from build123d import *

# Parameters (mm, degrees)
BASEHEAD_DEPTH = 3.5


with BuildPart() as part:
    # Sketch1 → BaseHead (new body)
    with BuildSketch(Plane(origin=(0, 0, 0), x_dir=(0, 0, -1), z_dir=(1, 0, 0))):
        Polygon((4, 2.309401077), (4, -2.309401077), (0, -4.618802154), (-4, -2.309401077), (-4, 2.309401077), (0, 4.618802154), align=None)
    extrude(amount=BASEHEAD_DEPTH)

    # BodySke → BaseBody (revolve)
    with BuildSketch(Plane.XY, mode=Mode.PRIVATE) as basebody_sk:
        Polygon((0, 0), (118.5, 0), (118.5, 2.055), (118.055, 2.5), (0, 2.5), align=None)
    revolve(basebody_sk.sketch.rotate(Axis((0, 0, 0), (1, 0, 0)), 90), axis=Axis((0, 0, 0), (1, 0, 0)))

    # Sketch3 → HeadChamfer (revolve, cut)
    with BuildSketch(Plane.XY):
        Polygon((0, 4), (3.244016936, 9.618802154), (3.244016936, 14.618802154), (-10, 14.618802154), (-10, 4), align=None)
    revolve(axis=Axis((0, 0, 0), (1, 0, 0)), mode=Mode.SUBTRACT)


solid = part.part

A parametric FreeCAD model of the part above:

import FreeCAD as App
import Part
import Sketcher
Q = App.Units.Quantity


def add_polygon(sketch, points):
    """Adds a closed chain of lines whose ends are joined by coincident constraints."""
    first, n = sketch.GeometryCount, len(points)
    for a, b in zip(points, points[1:] + points[:1]):
        sketch.addGeometry(Part.LineSegment(App.Vector(*a, 0), App.Vector(*b, 0)), False)
    for i in range(n):
        sketch.addConstraint(Sketcher.Constraint("Coincident", first + i, 2, first + (i + 1) % n, 1))

doc = App.newDocument("Part")
body = doc.addObject("PartDesign::Body", "Body")

# Sketch on YZ plane
sketch1 = body.newObject("Sketcher::SketchObject", "Sketch")
sketch1.AttachmentSupport = (doc.getObject("YZ_Plane"), [""])
sketch1.MapMode = "FlatFace"
add_polygon(sketch1, [(-2.3, -4), (2.3, -4), (4.6, 0), (2.3, 4), (-2.3, 4), (-4.6, 0)])  # lines 0-5
sketch1.addConstraint(Sketcher.Constraint("Horizontal", 0))
sketch1.addConstraint(Sketcher.Constraint("Horizontal", 3))
sketch1.addConstraint(Sketcher.Constraint("Symmetric", 0, 2, 3, 2, -1, 1))
sketch1.addConstraint(Sketcher.Constraint("Symmetric", 1, 2, 4, 2, -1, 1))
sketch1.addConstraint(Sketcher.Constraint("PointOnObject", 1, 2, -1))
sketch1.addConstraint(Sketcher.Constraint("Parallel", 2, 5))
sketch1.addConstraint(Sketcher.Constraint("Vertical", 0, 2, 2, 2))
sketch1.addConstraint(Sketcher.Constraint("Angle", 1, Q("60 deg")))
sketch1.addConstraint(Sketcher.Constraint("DistanceY", 0, 2, -1, 1, 4.0))
sketch1.addConstraint(Sketcher.Constraint("DistanceX", -1, 1, 0, 2, 2.309401))
pad1 = body.newObject("PartDesign::Pad", "Pad")
pad1.Profile = sketch1
pad1.Length = 3.5

# Sketch on XY plane
sketch2 = body.newObject("Sketcher::SketchObject", "Sketch001")
sketch2.AttachmentSupport = (doc.getObject("XY_Plane"), [""])
sketch2.MapMode = "FlatFace"
add_polygon(sketch2, [(0, 0), (118.5, 0), (118.5, 2.1), (118.1, 2.5), (0, 2.5)])  # lines 0-4
sketch2.addConstraint(Sketcher.Constraint("Horizontal", 0))
sketch2.addConstraint(Sketcher.Constraint("Vertical", 1))
sketch2.addConstraint(Sketcher.Constraint("Horizontal", 3))
sketch2.addConstraint(Sketcher.Constraint("Vertical", 4))
sketch2.addConstraint(Sketcher.Constraint("Coincident", 4, 2, -1, 1))
sketch2.addConstraint(Sketcher.Constraint("Angle", 2, Q("135 deg")))
sketch2.addConstraint(Sketcher.Constraint("DistanceX", 0, 1, 0, 2, 118.5))
sketch2.addConstraint(Sketcher.Constraint("DistanceY", 4, 2, 4, 1, 2.5))
sketch2.addConstraint(Sketcher.Constraint("DistanceX", 3, 2, 3, 1, 118.055))
revolution = body.newObject("PartDesign::Revolution", "Revolution")
revolution.Profile = sketch2
revolution.ReferenceAxis = (sketch2, ["H_Axis"])
revolution.Angle = 360

# Sketch on XY plane
sketch3 = body.newObject("Sketcher::SketchObject", "Sketch002")
sketch3.AttachmentSupport = (doc.getObject("XY_Plane"), [""])
sketch3.MapMode = "FlatFace"
add_polygon(sketch3, [(0, 4), (3, 10), (3, 15), (-10, 15), (-10, 4)])  # lines 0-4
sketch3.addConstraint(Sketcher.Constraint("Vertical", 1))
sketch3.addConstraint(Sketcher.Constraint("Horizontal", 2))
sketch3.addConstraint(Sketcher.Constraint("Vertical", 3))
sketch3.addConstraint(Sketcher.Constraint("Horizontal", 4))
sketch3.addConstraint(Sketcher.Constraint("PointOnObject", 4, 2, -2))
sketch3.addConstraint(Sketcher.Constraint("DistanceX", 4, 1, 4, 2, 10.0))
sketch3.addConstraint(Sketcher.Constraint("DistanceY", 1, 1, 1, 2, 5.0))
sketch3.addConstraint(Sketcher.Constraint("Angle", 0, Q("60 deg")))
sketch3.addConstraint(Sketcher.Constraint("DistanceY", -1, 1, 3, 2, 4.0))
sketch3.addConstraint(Sketcher.Constraint("DistanceX", 2, 2, 2, 1, 13.244017))
groove = body.newObject("PartDesign::Groove", "Groove")
groove.Profile = sketch3
groove.ReferenceAxis = (sketch3, ["H_Axis"])
groove.Angle = 360

doc.recompute()
